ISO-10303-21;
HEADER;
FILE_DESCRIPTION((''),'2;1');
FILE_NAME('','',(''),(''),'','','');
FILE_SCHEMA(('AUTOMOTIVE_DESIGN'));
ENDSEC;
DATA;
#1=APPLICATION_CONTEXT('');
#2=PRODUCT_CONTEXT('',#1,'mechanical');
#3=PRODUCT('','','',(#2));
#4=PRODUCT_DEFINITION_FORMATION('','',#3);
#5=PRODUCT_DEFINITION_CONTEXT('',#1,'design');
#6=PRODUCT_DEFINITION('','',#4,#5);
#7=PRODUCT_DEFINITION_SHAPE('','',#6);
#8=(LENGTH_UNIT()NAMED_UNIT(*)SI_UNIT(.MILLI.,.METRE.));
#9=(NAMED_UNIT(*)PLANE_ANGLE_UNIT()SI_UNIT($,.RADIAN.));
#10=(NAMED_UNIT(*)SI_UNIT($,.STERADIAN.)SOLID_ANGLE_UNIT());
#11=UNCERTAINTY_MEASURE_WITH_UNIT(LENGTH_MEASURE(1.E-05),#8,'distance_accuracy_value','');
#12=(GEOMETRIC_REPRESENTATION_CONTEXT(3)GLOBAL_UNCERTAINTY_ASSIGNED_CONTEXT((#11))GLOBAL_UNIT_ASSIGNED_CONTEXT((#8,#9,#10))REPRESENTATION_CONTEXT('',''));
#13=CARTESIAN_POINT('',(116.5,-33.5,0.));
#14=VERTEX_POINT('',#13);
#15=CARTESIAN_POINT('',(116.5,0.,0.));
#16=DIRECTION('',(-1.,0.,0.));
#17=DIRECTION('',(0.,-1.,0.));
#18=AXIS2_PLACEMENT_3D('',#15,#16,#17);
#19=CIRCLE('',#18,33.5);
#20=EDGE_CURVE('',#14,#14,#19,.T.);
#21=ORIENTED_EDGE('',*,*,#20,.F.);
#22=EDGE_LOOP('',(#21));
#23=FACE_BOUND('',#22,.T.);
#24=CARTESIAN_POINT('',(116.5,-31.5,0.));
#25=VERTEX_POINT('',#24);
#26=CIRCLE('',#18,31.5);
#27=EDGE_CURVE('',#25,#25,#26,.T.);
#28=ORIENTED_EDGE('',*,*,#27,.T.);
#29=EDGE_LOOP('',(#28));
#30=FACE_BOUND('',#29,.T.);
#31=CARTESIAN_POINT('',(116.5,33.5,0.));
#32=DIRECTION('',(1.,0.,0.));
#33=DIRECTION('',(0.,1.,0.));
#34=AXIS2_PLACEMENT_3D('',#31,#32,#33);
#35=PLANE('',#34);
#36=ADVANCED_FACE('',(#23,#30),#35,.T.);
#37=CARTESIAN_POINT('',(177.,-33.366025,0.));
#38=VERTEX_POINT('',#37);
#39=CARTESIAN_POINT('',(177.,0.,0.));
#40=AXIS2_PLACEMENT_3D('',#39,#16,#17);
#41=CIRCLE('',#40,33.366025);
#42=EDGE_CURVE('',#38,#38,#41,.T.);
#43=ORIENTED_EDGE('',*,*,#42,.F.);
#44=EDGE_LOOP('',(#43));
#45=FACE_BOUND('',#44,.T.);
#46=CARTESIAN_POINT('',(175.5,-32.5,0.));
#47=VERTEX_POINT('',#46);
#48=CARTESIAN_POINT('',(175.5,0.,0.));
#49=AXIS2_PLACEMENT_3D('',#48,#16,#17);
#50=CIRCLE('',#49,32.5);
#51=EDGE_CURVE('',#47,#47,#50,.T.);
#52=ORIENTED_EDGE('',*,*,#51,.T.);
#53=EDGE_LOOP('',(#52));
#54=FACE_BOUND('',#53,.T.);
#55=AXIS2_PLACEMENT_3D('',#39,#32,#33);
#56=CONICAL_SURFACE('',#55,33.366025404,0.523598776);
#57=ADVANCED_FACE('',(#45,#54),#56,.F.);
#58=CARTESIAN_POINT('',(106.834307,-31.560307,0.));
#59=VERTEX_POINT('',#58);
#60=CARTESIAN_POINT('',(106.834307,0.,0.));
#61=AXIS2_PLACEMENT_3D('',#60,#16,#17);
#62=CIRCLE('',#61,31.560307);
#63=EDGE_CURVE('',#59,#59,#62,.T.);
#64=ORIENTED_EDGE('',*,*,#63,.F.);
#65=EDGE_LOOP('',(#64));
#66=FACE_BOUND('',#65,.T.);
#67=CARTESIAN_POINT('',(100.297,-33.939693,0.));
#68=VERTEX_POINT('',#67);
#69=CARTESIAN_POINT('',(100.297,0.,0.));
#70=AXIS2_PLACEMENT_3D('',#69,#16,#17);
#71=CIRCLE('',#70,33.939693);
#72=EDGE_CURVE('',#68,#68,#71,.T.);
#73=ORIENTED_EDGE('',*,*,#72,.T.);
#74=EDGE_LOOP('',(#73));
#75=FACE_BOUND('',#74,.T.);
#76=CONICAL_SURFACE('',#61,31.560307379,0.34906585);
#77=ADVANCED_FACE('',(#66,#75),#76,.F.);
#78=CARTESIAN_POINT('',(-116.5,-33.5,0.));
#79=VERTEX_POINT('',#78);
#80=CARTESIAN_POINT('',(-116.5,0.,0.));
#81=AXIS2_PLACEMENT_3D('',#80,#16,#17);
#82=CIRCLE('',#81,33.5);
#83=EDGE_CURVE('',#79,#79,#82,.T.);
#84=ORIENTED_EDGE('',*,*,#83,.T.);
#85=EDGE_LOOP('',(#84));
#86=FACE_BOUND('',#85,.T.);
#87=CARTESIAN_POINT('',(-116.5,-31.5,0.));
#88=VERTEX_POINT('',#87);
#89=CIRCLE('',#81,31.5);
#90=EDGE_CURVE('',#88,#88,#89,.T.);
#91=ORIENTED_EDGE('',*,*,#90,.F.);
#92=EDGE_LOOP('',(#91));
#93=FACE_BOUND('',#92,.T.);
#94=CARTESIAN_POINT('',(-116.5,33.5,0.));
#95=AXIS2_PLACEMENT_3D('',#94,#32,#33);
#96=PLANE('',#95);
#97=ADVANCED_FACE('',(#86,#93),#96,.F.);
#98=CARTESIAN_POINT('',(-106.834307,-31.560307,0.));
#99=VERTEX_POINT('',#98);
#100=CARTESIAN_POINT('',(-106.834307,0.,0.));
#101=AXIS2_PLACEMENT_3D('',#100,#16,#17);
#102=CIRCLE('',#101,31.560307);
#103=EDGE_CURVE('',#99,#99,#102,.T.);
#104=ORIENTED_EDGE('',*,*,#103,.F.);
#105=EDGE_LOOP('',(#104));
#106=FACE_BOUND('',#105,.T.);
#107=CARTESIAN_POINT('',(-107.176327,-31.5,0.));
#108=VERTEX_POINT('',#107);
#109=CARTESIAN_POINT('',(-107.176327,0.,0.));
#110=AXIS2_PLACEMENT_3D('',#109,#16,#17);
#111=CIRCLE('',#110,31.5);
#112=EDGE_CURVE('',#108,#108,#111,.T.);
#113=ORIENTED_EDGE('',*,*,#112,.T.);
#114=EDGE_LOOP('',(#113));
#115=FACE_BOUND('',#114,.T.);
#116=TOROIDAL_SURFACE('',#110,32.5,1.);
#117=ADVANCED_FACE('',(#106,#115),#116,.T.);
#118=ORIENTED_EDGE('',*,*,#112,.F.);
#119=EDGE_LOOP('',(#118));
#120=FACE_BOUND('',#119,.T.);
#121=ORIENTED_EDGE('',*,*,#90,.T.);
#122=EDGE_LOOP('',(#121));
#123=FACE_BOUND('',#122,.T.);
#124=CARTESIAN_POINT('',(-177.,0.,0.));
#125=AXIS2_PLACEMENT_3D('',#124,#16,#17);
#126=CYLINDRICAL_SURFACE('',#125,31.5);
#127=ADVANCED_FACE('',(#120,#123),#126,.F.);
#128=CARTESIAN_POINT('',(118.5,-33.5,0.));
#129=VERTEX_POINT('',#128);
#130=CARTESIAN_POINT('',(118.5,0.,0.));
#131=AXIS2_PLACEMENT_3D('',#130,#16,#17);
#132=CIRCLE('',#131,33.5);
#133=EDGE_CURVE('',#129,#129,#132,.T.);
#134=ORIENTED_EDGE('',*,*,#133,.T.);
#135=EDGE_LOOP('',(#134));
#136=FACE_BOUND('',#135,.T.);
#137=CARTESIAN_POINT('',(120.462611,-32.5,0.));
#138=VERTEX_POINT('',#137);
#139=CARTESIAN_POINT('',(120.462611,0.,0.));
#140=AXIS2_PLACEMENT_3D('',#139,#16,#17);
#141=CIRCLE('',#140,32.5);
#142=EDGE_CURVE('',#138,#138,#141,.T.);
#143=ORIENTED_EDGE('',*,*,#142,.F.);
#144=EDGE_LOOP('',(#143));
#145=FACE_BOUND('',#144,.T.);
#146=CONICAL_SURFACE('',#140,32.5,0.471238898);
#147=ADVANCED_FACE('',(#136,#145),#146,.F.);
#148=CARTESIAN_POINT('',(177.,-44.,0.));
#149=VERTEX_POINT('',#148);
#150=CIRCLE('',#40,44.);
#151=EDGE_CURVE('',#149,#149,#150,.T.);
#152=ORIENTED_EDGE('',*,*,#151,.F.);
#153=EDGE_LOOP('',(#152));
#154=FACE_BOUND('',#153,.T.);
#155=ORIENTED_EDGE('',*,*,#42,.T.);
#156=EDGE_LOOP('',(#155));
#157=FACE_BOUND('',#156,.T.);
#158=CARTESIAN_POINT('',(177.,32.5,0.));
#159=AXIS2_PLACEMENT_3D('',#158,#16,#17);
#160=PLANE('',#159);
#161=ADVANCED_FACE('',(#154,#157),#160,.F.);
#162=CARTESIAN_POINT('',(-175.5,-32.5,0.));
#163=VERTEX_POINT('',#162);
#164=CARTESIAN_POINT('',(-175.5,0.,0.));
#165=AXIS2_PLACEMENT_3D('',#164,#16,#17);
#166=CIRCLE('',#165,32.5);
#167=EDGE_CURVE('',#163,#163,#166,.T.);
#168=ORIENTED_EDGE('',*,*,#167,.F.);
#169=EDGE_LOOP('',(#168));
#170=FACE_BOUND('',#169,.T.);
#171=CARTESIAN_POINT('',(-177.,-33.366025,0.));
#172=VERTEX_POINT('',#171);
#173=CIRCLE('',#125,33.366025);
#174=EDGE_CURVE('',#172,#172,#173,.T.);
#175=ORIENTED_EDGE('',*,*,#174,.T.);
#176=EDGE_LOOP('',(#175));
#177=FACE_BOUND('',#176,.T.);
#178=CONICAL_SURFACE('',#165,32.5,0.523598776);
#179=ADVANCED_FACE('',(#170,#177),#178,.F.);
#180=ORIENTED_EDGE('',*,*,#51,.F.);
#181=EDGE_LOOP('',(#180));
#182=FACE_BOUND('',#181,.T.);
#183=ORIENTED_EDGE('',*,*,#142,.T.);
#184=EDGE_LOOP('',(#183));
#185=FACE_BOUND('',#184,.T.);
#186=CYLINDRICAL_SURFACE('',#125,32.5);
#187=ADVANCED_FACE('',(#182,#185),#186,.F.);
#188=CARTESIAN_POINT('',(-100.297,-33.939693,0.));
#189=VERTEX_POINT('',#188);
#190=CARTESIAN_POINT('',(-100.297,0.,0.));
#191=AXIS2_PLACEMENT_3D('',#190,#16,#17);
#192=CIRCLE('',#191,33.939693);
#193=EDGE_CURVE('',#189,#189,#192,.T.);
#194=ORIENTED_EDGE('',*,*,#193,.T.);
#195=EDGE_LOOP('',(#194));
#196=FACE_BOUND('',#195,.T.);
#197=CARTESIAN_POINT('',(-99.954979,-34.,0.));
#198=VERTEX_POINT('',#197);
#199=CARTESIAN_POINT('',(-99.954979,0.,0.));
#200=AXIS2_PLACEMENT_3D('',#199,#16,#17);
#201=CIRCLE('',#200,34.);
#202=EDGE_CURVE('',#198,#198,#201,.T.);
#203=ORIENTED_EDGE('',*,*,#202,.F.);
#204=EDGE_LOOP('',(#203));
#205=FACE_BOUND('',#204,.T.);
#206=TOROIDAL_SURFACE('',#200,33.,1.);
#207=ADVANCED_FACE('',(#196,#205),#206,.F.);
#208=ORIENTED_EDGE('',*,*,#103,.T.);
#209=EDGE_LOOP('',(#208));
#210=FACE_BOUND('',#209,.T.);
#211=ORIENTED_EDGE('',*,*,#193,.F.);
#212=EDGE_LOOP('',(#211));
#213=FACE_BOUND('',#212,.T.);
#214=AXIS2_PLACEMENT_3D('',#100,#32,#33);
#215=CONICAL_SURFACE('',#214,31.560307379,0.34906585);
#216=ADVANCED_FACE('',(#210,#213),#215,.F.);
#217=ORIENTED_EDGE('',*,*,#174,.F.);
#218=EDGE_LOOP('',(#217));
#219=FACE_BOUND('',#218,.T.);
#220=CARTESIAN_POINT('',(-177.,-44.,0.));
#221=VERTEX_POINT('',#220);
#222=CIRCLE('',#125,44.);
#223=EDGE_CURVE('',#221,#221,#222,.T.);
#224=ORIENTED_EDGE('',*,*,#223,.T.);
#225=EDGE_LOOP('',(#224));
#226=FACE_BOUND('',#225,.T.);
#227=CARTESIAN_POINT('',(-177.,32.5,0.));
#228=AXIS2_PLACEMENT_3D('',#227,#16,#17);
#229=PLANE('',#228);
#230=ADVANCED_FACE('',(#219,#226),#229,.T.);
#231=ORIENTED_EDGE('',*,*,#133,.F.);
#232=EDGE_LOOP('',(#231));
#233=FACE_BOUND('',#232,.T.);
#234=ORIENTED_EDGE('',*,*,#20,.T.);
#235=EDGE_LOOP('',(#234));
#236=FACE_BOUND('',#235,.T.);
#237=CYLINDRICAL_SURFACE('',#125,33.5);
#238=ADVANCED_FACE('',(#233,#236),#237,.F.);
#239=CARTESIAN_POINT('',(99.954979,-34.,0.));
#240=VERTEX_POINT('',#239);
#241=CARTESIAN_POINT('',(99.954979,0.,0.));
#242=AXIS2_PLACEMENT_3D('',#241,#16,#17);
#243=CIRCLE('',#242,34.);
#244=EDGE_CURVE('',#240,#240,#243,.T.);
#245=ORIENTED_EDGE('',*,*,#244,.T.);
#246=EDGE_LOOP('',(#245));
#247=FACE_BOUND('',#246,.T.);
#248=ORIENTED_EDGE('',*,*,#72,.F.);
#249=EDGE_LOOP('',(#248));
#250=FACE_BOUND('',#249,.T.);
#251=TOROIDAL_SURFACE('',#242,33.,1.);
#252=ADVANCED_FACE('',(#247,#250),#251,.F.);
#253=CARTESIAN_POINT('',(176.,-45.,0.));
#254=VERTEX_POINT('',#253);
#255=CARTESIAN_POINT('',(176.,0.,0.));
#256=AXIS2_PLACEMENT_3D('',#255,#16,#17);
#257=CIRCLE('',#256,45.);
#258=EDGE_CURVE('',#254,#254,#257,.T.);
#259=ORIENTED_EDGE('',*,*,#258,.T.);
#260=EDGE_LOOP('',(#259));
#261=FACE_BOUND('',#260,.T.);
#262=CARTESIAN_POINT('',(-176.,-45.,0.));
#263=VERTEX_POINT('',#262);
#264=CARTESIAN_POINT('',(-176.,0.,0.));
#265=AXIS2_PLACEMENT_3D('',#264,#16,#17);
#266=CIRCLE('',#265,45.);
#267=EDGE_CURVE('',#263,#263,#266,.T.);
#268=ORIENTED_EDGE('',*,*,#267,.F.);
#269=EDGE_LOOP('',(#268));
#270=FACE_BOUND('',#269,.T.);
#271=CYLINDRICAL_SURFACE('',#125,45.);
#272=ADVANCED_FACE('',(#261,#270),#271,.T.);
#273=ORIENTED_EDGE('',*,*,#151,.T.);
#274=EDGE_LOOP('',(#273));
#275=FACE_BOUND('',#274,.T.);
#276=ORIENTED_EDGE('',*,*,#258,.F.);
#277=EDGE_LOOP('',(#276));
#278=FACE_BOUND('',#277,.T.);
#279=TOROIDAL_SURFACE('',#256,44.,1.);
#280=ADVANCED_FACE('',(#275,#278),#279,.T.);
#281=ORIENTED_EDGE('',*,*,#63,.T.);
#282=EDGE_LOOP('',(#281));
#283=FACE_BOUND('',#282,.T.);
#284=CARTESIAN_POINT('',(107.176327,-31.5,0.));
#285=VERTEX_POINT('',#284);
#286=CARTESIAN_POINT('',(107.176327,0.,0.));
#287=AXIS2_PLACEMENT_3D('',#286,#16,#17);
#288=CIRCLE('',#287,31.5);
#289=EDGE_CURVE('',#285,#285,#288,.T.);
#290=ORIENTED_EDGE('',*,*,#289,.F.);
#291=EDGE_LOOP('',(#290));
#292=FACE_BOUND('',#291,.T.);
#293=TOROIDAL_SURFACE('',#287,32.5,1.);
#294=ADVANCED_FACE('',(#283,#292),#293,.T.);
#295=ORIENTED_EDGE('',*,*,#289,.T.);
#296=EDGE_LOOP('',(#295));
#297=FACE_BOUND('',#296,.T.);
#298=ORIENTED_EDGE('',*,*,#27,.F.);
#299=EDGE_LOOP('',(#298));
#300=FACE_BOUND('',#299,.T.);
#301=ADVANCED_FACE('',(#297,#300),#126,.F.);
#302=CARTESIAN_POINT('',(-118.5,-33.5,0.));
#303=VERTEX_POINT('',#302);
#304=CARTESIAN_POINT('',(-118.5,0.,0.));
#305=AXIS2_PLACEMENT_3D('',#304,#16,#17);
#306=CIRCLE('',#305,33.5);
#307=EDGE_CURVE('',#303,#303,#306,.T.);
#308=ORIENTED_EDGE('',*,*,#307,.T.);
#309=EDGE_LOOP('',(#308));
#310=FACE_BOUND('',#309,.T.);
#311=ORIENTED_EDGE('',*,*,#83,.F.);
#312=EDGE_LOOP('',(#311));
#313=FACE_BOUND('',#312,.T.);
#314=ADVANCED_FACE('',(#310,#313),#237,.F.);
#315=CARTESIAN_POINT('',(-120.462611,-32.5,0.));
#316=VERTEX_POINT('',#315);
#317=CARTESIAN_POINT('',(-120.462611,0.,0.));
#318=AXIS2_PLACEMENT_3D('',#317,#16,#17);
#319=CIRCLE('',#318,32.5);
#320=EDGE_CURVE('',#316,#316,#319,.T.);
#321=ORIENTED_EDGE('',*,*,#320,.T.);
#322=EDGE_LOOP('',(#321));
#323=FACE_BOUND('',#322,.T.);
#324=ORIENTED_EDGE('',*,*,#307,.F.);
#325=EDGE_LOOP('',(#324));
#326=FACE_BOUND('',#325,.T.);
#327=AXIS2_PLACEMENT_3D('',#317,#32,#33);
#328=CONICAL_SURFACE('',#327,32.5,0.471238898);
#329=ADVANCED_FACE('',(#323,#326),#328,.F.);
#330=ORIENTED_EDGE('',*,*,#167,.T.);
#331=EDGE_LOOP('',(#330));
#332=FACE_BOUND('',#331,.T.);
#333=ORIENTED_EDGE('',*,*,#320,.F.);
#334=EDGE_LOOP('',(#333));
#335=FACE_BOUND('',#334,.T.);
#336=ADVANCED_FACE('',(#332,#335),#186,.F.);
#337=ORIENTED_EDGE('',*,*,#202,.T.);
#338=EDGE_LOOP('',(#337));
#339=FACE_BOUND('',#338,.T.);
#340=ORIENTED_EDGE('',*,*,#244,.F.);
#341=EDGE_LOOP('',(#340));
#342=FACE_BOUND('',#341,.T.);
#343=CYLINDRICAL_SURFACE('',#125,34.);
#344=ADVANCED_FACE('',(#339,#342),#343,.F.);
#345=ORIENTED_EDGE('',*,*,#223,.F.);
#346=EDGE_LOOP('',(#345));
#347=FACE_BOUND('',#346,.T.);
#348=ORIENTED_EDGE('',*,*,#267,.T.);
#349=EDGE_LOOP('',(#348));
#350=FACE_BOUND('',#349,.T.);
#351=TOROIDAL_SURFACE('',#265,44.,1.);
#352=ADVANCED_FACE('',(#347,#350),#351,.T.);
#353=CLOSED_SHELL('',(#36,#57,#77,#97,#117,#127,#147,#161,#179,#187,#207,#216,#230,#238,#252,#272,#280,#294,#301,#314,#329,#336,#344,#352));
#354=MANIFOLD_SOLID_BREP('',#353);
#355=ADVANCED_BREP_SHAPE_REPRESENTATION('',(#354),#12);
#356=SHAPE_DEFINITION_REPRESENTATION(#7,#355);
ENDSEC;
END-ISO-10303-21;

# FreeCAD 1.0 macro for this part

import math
import FreeCAD as App
import Part
import Sketcher

V = App.Vector
Q = App.Units.Quantity

doc = App.newDocument("Part")
body = doc.addObject("PartDesign::Body", "Body")

# Sketch on XY plane
sketch1 = body.newObject("Sketcher::SketchObject", "Sketch")
sketch1.AttachmentSupport = (doc.getObject("XY_Plane"), [""])
sketch1.MapMode = "FlatFace"
sketch1.addGeometry(Part.LineSegment(V(-177, 44, 0), V(-177, 32.5, 0)), False)
sketch1.addGeometry(Part.LineSegment(V(-177, 32.5, 0), V(-120.46, 32.5, 0)), False)
sketch1.addGeometry(Part.LineSegment(V(-120.46, 32.5, 0), V(-118.5, 33.5, 0)), False)
sketch1.addGeometry(Part.LineSegment(V(-118.5, 33.5, 0), V(-116.5, 33.5, 0)), False)
sketch1.addGeometry(Part.LineSegment(V(-116.5, 33.5, 0), V(-116.5, 31.5, 0)), False)
sketch1.addGeometry(Part.LineSegment(V(-116.5, 31.5, 0), V(-107.18, 31.5, 0)), False)
sketch1.addGeometry(Part.ArcOfCircle(Part.Circle(V(-107.18, 32.5, 0), V(0, 0, 1), 1), math.radians(-90), math.radians(-70)), False)
sketch1.addGeometry(Part.LineSegment(V(-106.83, 31.56, 0), V(-100.3, 33.94, 0)), False)
sketch1.addGeometry(Part.ArcOfCircle(Part.Circle(V(-99.95, 33, 0), V(0, 0, 1), 1), math.radians(90), math.radians(110)), False)
sketch1.addGeometry(Part.LineSegment(V(-99.95, 34, 0), V(99.95, 34, 0)), False)
sketch1.addGeometry(Part.ArcOfCircle(Part.Circle(V(99.95, 33, 0), V(0, 0, 1), 1), math.radians(70), math.radians(90)), False)
sketch1.addGeometry(Part.LineSegment(V(100.3, 33.94, 0), V(106.83, 31.56, 0)), False)
sketch1.addGeometry(Part.ArcOfCircle(Part.Circle(V(107.18, 32.5, 0), V(0, 0, 1), 1), math.radians(-110), math.radians(-90)), False)
sketch1.addGeometry(Part.LineSegment(V(107.18, 31.5, 0), V(116.5, 31.5, 0)), False)
sketch1.addGeometry(Part.LineSegment(V(116.5, 31.5, 0), V(116.5, 33.5, 0)), False)
sketch1.addGeometry(Part.LineSegment(V(116.5, 33.5, 0), V(118.5, 33.5, 0)), False)
sketch1.addGeometry(Part.LineSegment(V(118.5, 33.5, 0), V(120.46, 32.5, 0)), False)
sketch1.addGeometry(Part.LineSegment(V(120.46, 32.5, 0), V(177, 32.5, 0)), False)
sketch1.addGeometry(Part.LineSegment(V(177, 32.5, 0), V(177, 44, 0)), False)
sketch1.addGeometry(Part.ArcOfCircle(Part.Circle(V(176, 44, 0), V(0, 0, 1), 1), math.radians(0), math.radians(90)), False)
sketch1.addGeometry(Part.LineSegment(V(176, 45, 0), V(-176, 45, 0)), False)
sketch1.addGeometry(Part.ArcOfCircle(Part.Circle(V(-176, 44, 0), V(0, 0, 1), 1), math.radians(90), math.radians(180)), False)
sketch1.addConstraint(Sketcher.Constraint("Coincident", 0, 2, 1, 1))
sketch1.addConstraint(Sketcher.Constraint("Coincident", 1, 2, 2, 1))
sketch1.addConstraint(Sketcher.Constraint("Coincident", 2, 2, 3, 1))
sketch1.addConstraint(Sketcher.Constraint("Coincident", 3, 2, 4, 1))
sketch1.addConstraint(Sketcher.Constraint("Coincident", 4, 2, 5, 1))
sketch1.addConstraint(Sketcher.Constraint("Tangent", 5, 2, 6, 1))
sketch1.addConstraint(Sketcher.Constraint("Tangent", 6, 2, 7, 1))
sketch1.addConstraint(Sketcher.Constraint("Tangent", 7, 2, 8, 2))
sketch1.addConstraint(Sketcher.Constraint("Tangent", 8, 1, 9, 1))
sketch1.addConstraint(Sketcher.Constraint("Tangent", 9, 2, 10, 2))
sketch1.addConstraint(Sketcher.Constraint("Tangent", 10, 1, 11, 1))
sketch1.addConstraint(Sketcher.Constraint("Tangent", 11, 2, 12, 1))
sketch1.addConstraint(Sketcher.Constraint("Tangent", 12, 2, 13, 1))
sketch1.addConstraint(Sketcher.Constraint("Coincident", 13, 2, 14, 1))
sketch1.addConstraint(Sketcher.Constraint("Coincident", 14, 2, 15, 1))
sketch1.addConstraint(Sketcher.Constraint("Coincident", 15, 2, 16, 1))
sketch1.addConstraint(Sketcher.Constraint("Coincident", 16, 2, 17, 1))
sketch1.addConstraint(Sketcher.Constraint("Coincident", 17, 2, 18, 1))
sketch1.addConstraint(Sketcher.Constraint("Tangent", 18, 2, 19, 1))
sketch1.addConstraint(Sketcher.Constraint("Tangent", 19, 2, 20, 1))
sketch1.addConstraint(Sketcher.Constraint("Tangent", 20, 2, 21, 1))
sketch1.addConstraint(Sketcher.Constraint("Tangent", 21, 2, 0, 1))
sketch1.addConstraint(Sketcher.Constraint("Vertical", 0))
sketch1.addConstraint(Sketcher.Constraint("Horizontal", 1))
sketch1.addConstraint(Sketcher.Constraint("Horizontal", 3))
sketch1.addConstraint(Sketcher.Constraint("Vertical", 4))
sketch1.addConstraint(Sketcher.Constraint("Horizontal", 5))
sketch1.addConstraint(Sketcher.Constraint("Horizontal", 9))
sketch1.addConstraint(Sketcher.Constraint("Horizontal", 13))
sketch1.addConstraint(Sketcher.Constraint("Vertical", 14))
sketch1.addConstraint(Sketcher.Constraint("Horizontal", 15))
sketch1.addConstraint(Sketcher.Constraint("Horizontal", 17))
sketch1.addConstraint(Sketcher.Constraint("Vertical", 18))
sketch1.addConstraint(Sketcher.Constraint("Horizontal", 20))
sketch1.addConstraint(Sketcher.Constraint("Equal", 6, 8))
sketch1.addConstraint(Sketcher.Constraint("Equal", 8, 10))
sketch1.addConstraint(Sketcher.Constraint("Equal", 10, 12))
sketch1.addConstraint(Sketcher.Constraint("Equal", 12, 19))
sketch1.addConstraint(Sketcher.Constraint("Equal", 19, 21))
sketch1.addConstraint(Sketcher.Constraint("Symmetric", 6, 3, 12, 3, -2))
sketch1.addConstraint(Sketcher.Constraint("Symmetric", 3, 2, 14, 2, -2))
sketch1.addConstraint(Sketcher.Constraint("Symmetric", 1, 2, 16, 2, -2))
sketch1.addConstraint(Sketcher.Constraint("Horizontal", 12, 3, 0, 2))
sketch1.addConstraint(Sketcher.Constraint("Horizontal", 7, 2, 10, 1))
sketch1.addConstraint(Sketcher.Constraint("Equal", 3, 15))
sketch1.addConstraint(Sketcher.Constraint("Equal", 1, 17))
sketch1.addConstraint(Sketcher.Constraint("Equal", 15, 4))
sketch1.addConstraint(Sketcher.Constraint("Radius", 6, 1.0))
sketch1.addConstraint(Sketcher.Constraint("DistanceX", 3, 1, 3, 2, 2.0))
sketch1.addConstraint(Sketcher.Constraint("DistanceX", 20, 2, 20, 1, 352.0))
sketch1.addConstraint(Sketcher.Constraint("Angle", 2, Q("27 deg")))
sketch1.addConstraint(Sketcher.Constraint("Angle", 7, Q("20 deg")))
sketch1.addConstraint(Sketcher.Constraint("DistanceY", 0, 2, 0, 1, 11.5))
sketch1.addConstraint(Sketcher.Constraint("DistanceY", -1, 1, 8, 3, 33.0))
sketch1.addConstraint(Sketcher.Constraint("DistanceY", -1, 1, 19, 3, 44.0))
sketch1.addConstraint(Sketcher.Constraint("DistanceX", 2, 2, -1, 1, 118.5))
sketch1.addConstraint(Sketcher.Constraint("DistanceX", 7, 2, -1, 1, 100.297))
revolution = body.newObject("PartDesign::Revolution", "Revolution")
revolution.Profile = sketch1
revolution.ReferenceAxis = (sketch1, ["H_Axis"])
revolution.Angle = 360

# Sketch on XY plane
sketch2 = body.newObject("Sketcher::SketchObject", "Sketch001")
sketch2.AttachmentSupport = (doc.getObject("XY_Plane"), [""])
sketch2.MapMode = "FlatFace"
sketch2.addGeometry(Part.LineSegment(V(177, 32.5, 0), V(177, 33.4, 0)), False)
sketch2.addGeometry(Part.LineSegment(V(177, 33.4, 0), V(175.5, 32.5, 0)), False)
sketch2.addGeometry(Part.LineSegment(V(175.5, 32.5, 0), V(177, 32.5, 0)), False)
sketch2.addGeometry(Part.LineSegment(V(-175.5, 32.5, 0), V(-177, 33.4, 0)), False)
sketch2.addGeometry(Part.LineSegment(V(-177, 33.4, 0), V(-177, 32.5, 0)), False)
sketch2.addGeometry(Part.LineSegment(V(-177, 32.5, 0), V(-175.5, 32.5, 0)), False)
sketch2.addConstraint(Sketcher.Constraint("Coincident", 0, 2, 1, 1))
sketch2.addConstraint(Sketcher.Constraint("Coincident", 1, 2, 2, 1))
sketch2.addConstraint(Sketcher.Constraint("Coincident", 2, 2, 0, 1))
sketch2.addConstraint(Sketcher.Constraint("Coincident", 3, 2, 4, 1))
sketch2.addConstraint(Sketcher.Constraint("Coincident", 4, 2, 5, 1))
sketch2.addConstraint(Sketcher.Constraint("Coincident", 5, 2, 3, 1))
sketch2.addConstraint(Sketcher.Constraint("Vertical", 0))
sketch2.addConstraint(Sketcher.Constraint("Horizontal", 2))
sketch2.addConstraint(Sketcher.Constraint("Vertical", 4))
sketch2.addConstraint(Sketcher.Constraint("Horizontal", 5))
sketch2.addConstraint(Sketcher.Constraint("Symmetric", 0, 2, 3, 2, -2))
sketch2.addConstraint(Sketcher.Constraint("Symmetric", 1, 2, 5, 2, -2))
sketch2.addConstraint(Sketcher.Constraint("Angle", 1, Q("-150 deg")))
sketch2.addConstraint(Sketcher.Constraint("DistanceX", 2, 1, 2, 2, 1.5))
sketch2.addConstraint(Sketcher.Constraint("DistanceX", -1, 1, 0, 2, 177.0))
sketch2.addConstraint(Sketcher.Constraint("DistanceY", -1, 1, 1, 2, 32.5))
groove = body.newObject("PartDesign::Groove", "Groove")
groove.Profile = sketch2
groove.ReferenceAxis = (sketch2, ["H_Axis"])
groove.Angle = 360

doc.recompute()
